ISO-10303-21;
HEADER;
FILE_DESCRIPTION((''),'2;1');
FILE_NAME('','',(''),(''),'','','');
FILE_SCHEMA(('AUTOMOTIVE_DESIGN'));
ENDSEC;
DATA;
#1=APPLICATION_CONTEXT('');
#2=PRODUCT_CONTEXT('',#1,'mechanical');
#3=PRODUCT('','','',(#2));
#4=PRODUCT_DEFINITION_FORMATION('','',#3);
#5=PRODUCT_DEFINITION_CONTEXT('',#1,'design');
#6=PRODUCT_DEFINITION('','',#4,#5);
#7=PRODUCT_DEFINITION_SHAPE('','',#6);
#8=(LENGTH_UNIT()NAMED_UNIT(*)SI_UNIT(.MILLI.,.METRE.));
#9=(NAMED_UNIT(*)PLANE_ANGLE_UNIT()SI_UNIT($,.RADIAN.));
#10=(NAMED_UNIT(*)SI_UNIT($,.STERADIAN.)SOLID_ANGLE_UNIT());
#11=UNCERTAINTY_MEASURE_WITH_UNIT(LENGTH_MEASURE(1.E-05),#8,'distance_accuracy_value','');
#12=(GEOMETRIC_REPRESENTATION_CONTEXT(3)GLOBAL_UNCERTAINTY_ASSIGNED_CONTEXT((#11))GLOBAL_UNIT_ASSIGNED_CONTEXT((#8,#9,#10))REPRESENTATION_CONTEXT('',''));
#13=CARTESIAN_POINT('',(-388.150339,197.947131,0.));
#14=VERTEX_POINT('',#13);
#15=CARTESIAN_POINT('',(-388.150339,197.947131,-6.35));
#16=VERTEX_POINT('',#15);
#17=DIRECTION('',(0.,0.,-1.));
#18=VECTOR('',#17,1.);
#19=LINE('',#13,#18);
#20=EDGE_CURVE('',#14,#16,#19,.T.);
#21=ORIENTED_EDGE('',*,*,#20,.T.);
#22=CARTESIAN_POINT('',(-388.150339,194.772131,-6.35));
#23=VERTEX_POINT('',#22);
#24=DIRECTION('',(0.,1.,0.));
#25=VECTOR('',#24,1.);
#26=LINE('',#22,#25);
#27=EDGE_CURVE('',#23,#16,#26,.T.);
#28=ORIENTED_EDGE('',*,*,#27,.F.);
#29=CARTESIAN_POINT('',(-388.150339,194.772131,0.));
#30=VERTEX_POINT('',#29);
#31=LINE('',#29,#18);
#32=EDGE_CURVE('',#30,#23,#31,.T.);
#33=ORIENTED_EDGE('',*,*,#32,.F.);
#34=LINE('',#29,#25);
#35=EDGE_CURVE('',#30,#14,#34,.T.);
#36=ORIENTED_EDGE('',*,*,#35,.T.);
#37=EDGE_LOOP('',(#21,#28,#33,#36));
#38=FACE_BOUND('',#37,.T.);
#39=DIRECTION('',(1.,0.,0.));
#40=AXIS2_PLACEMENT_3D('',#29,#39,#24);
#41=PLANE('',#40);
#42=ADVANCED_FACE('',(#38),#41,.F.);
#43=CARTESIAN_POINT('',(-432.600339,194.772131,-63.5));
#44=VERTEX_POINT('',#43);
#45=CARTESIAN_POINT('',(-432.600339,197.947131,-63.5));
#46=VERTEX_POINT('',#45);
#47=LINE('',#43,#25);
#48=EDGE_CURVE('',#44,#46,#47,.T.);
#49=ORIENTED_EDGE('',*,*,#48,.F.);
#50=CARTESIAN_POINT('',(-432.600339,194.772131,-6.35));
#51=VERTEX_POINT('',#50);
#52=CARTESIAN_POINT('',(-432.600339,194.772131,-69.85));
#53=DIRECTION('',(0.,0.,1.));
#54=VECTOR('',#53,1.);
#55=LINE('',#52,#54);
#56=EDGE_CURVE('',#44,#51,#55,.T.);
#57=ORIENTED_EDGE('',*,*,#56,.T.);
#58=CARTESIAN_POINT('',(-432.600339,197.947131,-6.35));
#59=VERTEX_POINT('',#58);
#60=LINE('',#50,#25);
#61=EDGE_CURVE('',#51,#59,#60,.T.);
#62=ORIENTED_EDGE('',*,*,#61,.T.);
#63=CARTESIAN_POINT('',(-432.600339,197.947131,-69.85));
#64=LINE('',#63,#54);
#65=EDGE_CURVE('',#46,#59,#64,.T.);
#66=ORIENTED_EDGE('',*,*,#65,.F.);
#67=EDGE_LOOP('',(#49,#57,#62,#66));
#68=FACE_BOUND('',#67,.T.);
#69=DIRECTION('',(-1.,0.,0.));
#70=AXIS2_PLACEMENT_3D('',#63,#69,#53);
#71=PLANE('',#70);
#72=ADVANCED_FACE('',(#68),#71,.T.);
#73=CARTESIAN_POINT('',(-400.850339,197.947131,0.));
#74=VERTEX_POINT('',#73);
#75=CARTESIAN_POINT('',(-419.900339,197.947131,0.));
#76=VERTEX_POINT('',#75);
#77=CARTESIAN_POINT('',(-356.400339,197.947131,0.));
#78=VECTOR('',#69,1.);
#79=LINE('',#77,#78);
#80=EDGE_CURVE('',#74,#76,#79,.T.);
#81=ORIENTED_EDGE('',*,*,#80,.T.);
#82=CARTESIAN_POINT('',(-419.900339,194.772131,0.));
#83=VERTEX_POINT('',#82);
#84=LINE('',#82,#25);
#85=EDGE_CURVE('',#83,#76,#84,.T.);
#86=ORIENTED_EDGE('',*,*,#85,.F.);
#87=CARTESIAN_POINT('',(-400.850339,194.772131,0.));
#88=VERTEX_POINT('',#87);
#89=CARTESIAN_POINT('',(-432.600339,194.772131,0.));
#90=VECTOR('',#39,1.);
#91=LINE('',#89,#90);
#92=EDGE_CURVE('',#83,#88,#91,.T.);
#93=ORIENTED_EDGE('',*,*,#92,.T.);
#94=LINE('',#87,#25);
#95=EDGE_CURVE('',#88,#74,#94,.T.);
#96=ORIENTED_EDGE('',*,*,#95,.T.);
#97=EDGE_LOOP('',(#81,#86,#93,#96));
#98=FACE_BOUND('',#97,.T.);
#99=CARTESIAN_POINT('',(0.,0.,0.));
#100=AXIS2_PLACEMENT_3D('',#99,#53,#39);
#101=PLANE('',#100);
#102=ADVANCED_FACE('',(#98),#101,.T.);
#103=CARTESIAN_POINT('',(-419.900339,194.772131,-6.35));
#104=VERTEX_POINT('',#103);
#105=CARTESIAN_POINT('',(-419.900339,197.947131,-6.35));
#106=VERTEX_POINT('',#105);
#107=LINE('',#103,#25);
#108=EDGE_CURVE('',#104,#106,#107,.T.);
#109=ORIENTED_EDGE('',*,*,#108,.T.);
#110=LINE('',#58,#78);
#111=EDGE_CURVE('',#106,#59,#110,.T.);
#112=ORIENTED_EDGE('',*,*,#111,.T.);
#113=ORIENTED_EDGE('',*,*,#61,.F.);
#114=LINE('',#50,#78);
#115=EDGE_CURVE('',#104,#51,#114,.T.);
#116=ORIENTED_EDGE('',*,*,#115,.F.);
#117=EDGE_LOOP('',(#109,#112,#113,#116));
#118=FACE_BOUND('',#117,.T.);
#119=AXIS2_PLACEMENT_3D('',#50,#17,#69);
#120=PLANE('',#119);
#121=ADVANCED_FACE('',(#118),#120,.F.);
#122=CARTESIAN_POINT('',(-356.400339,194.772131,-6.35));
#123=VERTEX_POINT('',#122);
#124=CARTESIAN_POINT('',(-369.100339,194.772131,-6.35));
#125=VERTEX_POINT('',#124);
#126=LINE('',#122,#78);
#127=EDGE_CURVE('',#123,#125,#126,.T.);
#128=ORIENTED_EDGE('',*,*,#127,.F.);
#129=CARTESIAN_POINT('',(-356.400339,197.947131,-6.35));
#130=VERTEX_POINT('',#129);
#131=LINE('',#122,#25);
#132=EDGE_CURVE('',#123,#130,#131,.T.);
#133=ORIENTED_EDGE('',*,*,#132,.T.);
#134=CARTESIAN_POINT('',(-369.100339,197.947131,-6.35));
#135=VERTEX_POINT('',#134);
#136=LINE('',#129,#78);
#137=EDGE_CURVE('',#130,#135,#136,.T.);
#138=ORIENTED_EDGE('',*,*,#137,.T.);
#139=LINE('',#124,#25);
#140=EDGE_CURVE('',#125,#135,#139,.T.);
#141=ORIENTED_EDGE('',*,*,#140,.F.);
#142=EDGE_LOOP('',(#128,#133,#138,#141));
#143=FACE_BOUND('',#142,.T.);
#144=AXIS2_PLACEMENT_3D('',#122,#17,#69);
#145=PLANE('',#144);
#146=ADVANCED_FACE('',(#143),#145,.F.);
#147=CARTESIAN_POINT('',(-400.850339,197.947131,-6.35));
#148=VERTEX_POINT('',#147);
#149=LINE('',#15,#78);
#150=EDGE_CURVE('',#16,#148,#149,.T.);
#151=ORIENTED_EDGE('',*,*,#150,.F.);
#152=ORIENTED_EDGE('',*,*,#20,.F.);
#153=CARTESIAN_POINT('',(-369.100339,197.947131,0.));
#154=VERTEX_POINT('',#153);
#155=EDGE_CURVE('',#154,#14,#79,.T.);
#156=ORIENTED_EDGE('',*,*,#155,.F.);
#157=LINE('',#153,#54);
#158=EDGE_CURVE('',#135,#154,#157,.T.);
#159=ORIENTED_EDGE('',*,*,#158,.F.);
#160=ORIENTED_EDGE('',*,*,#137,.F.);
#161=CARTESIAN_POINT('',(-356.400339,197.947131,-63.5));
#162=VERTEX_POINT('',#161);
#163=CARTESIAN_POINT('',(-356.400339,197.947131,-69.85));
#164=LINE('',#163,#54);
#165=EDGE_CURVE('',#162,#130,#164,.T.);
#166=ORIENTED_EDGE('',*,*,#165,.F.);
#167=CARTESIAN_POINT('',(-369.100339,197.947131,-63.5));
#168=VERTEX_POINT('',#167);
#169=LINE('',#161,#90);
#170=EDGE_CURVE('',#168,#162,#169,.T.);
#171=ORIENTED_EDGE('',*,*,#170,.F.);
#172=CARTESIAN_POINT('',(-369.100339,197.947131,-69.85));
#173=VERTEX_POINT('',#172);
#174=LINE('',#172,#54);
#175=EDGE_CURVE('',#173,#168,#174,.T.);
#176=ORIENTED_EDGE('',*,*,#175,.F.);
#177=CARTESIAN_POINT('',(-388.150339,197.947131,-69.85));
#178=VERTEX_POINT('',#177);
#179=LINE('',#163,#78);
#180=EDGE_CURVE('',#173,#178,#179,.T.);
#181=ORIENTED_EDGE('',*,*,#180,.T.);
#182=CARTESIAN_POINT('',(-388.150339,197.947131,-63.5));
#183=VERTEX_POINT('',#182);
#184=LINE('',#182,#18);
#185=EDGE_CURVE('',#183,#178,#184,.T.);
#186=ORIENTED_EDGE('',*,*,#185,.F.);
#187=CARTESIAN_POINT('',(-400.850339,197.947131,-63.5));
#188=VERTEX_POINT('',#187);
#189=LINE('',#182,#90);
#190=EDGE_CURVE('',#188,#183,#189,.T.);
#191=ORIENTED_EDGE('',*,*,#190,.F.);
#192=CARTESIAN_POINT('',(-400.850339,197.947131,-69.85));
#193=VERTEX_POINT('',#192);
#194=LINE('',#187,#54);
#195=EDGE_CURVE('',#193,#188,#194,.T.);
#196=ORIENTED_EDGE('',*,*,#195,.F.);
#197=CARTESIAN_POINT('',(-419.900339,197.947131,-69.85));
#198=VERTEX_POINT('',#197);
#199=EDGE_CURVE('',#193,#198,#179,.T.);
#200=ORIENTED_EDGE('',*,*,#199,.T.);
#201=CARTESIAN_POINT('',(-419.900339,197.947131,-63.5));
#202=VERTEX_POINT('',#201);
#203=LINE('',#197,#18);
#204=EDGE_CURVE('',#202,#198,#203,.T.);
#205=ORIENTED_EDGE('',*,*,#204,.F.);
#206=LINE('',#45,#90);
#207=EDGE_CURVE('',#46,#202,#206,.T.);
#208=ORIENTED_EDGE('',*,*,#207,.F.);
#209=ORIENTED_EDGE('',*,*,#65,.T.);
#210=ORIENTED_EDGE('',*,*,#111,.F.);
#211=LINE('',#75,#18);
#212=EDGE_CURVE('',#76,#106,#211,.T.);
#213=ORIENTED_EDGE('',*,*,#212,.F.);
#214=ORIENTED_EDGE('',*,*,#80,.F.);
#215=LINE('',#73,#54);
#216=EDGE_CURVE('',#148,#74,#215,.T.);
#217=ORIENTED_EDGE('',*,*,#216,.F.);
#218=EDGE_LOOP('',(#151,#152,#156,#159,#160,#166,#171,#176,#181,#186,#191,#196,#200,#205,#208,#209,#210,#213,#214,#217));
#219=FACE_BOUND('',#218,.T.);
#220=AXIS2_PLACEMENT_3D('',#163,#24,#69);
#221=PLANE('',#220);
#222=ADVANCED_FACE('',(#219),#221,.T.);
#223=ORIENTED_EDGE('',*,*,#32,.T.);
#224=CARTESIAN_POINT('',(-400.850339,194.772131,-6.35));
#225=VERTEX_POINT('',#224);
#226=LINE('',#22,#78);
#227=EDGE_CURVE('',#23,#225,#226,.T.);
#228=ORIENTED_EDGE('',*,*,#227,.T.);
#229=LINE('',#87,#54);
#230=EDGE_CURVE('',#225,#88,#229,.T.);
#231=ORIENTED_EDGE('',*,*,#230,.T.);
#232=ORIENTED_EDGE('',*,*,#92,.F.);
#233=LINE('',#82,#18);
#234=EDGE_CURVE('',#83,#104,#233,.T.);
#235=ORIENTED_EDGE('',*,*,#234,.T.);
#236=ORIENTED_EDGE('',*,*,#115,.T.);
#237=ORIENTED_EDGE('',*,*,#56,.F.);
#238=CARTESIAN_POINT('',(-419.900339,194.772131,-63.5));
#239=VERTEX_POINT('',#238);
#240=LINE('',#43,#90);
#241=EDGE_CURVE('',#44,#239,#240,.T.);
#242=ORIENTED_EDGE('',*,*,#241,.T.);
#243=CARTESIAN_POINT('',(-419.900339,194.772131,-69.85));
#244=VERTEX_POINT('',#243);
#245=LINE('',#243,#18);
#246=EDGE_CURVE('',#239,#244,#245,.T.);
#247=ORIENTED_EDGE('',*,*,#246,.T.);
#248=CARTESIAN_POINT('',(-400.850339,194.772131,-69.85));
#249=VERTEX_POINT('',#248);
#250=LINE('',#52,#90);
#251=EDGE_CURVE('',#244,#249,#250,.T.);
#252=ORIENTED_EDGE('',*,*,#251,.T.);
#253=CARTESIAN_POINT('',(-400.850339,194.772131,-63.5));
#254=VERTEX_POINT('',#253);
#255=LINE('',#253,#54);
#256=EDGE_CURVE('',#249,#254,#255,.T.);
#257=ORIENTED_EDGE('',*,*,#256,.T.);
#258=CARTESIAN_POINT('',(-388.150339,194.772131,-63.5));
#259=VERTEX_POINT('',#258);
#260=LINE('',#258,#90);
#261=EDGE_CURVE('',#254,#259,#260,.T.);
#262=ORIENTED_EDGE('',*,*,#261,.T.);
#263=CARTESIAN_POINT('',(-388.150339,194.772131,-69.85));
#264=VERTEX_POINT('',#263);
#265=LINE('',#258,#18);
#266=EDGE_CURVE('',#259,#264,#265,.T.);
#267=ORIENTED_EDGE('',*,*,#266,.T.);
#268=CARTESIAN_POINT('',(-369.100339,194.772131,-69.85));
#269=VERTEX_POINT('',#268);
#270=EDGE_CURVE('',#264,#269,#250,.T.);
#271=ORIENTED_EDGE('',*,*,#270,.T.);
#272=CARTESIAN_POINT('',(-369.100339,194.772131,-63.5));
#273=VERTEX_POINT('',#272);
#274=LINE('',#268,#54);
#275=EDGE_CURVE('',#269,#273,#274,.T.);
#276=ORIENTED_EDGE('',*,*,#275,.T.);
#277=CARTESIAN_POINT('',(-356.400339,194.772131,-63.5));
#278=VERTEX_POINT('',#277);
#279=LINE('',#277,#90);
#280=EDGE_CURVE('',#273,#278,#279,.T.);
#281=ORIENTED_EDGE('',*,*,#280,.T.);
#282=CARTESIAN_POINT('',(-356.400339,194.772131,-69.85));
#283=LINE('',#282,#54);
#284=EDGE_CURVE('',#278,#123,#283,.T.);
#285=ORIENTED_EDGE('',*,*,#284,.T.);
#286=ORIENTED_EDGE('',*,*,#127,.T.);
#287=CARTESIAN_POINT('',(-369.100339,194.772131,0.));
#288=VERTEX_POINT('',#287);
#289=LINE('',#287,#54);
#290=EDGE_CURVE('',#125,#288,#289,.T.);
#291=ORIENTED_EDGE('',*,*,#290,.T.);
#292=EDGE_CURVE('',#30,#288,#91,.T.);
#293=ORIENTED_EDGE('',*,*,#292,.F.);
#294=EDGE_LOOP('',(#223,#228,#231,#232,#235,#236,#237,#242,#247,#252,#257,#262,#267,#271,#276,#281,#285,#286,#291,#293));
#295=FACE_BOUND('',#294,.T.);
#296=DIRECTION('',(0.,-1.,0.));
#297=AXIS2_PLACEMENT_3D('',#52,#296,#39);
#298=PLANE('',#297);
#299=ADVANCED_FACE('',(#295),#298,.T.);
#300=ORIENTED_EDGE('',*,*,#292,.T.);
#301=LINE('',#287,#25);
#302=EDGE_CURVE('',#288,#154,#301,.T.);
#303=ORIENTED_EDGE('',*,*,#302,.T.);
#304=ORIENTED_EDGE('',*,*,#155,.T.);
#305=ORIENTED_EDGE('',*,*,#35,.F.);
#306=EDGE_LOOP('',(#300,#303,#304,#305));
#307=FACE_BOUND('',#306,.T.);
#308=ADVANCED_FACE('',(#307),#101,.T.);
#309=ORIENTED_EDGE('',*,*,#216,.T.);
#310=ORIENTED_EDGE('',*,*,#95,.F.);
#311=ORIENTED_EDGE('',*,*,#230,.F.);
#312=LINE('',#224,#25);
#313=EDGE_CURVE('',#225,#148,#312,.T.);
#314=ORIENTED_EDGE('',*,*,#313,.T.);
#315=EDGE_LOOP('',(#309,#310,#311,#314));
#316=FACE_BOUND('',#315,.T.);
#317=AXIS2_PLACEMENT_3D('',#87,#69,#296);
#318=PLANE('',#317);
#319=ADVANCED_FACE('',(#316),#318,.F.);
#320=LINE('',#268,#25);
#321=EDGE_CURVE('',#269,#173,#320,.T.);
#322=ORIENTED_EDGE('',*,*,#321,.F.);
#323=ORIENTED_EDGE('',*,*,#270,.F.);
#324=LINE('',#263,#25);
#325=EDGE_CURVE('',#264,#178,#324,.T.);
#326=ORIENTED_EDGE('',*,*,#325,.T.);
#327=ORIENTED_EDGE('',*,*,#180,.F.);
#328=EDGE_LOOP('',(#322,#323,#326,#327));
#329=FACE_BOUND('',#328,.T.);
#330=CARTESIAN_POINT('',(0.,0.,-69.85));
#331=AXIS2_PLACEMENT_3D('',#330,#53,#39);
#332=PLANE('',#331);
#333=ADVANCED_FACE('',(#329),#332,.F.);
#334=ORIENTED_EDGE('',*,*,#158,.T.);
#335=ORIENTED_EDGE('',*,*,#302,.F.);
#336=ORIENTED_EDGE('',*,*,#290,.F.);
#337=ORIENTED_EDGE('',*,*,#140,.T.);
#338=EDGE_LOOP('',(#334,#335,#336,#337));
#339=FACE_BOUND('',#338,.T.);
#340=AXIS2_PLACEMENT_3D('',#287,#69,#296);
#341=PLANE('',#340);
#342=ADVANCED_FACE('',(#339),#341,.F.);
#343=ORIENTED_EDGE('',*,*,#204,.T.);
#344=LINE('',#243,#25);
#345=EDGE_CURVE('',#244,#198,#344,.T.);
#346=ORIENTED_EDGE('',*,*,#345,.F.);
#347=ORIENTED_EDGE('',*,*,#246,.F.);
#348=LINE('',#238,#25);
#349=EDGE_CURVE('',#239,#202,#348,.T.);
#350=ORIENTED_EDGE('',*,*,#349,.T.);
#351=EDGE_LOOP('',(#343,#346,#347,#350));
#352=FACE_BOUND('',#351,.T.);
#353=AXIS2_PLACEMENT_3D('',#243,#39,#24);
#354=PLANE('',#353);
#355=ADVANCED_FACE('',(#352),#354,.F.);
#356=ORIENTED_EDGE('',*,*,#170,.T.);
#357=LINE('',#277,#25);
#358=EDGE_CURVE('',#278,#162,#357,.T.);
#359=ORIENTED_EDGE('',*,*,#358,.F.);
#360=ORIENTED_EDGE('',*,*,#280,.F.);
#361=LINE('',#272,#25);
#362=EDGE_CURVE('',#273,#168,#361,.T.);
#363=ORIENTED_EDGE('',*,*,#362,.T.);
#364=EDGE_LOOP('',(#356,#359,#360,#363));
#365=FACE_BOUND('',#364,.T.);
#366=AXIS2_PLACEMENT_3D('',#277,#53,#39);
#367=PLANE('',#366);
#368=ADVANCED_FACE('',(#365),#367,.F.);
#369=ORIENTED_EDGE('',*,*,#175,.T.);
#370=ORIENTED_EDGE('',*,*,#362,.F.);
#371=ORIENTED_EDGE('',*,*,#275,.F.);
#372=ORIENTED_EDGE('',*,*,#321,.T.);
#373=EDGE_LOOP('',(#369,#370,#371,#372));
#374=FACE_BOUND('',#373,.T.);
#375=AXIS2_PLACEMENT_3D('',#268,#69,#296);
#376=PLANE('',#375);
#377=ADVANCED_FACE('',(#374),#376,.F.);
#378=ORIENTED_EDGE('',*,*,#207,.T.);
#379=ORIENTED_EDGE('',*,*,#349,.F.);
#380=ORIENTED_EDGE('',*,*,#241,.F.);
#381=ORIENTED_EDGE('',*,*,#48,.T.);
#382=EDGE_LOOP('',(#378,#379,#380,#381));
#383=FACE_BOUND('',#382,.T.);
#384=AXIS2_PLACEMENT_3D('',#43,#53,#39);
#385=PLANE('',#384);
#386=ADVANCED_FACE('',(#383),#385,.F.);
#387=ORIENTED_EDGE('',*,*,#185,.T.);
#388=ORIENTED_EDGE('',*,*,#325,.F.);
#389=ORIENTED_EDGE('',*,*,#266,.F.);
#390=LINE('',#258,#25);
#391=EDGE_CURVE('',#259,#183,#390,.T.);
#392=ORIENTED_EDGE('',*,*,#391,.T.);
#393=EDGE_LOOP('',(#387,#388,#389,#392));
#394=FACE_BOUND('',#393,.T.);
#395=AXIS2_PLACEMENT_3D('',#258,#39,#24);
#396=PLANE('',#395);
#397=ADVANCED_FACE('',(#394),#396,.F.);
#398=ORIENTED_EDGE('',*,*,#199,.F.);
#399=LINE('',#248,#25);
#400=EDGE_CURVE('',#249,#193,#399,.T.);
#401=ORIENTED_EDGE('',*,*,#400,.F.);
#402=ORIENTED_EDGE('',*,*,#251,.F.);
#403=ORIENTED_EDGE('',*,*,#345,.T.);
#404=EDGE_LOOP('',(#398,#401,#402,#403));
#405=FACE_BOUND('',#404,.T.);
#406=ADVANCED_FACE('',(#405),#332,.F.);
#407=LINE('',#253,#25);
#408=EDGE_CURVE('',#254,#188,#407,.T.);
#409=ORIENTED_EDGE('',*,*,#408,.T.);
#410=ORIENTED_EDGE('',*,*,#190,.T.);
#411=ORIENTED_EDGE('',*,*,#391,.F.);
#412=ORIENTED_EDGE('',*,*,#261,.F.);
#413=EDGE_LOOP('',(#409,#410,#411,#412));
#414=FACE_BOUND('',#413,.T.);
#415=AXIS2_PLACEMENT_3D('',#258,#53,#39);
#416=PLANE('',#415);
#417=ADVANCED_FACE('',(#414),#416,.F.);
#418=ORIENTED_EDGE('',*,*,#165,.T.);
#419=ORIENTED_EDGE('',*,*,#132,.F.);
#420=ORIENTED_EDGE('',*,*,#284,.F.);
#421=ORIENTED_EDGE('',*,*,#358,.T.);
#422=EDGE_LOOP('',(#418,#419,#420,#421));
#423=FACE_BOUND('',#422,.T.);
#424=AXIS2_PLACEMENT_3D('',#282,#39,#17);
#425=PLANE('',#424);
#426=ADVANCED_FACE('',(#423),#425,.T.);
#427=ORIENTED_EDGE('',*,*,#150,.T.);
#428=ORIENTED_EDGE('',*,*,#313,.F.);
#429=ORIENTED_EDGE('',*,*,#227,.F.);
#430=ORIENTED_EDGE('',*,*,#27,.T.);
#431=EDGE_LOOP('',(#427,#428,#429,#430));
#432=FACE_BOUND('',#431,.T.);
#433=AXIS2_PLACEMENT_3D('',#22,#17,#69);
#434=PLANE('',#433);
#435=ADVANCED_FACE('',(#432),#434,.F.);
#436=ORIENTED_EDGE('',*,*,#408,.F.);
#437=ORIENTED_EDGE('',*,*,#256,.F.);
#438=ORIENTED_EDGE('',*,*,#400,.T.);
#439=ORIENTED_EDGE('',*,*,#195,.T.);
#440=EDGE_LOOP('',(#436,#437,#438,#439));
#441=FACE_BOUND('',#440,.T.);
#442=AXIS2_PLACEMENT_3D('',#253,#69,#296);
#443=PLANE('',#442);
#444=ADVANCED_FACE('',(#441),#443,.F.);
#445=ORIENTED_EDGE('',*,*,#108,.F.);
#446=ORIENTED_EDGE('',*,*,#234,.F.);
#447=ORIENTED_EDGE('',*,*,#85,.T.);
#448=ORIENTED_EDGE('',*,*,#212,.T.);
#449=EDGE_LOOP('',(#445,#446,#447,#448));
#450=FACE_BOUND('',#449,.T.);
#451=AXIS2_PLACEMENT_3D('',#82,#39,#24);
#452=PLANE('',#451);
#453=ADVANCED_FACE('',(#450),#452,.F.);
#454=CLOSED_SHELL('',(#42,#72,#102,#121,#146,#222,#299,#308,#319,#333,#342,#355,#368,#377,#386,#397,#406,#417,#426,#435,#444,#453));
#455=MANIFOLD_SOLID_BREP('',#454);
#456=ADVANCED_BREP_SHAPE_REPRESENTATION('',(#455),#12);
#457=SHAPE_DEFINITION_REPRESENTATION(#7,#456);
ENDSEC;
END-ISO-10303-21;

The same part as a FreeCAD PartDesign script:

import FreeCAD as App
import Part
import Sketcher
Q = App.Units.Quantity


def add_polygon(sketch, points):
    """Adds a closed chain of lines whose ends are joined by coincident constraints."""
    first, n = sketch.GeometryCount, len(points)
    for a, b in zip(points, points[1:] + points[:1]):
        sketch.addGeometry(Part.LineSegment(App.Vector(*a, 0), App.Vector(*b, 0)), False)
    for i in range(n):
        sketch.addConstraint(Sketcher.Constraint("Coincident", first + i, 2, first + (i + 1) % n, 1))

doc = App.newDocument("Part")
body = doc.addObject("PartDesign::Body", "Body")

# Sketch on XY plane
sketch1 = body.newObject("Sketcher::SketchObject", "Sketch")
sketch1.AttachmentSupport = (doc.getObject("XY_Plane"), [""])
sketch1.MapMode = "FlatFace"
add_polygon(sketch1, [(-432.6, 197.9), (-432.6, 194.8), (-356.4, 194.8), (-356.4, 197.9)])  # lines 0-3
sketch1.addConstraint(Sketcher.Constraint("Vertical", 0))
sketch1.addConstraint(Sketcher.Constraint("Horizontal", 1))
sketch1.addConstraint(Sketcher.Constraint("Vertical", 2))
sketch1.addConstraint(Sketcher.Constraint("Horizontal", 3))
sketch1.addConstraint(Sketcher.Constraint("DistanceX", 1, 1, 1, 2, Q("3 in")))
sketch1.addConstraint(Sketcher.Constraint("DistanceY", 0, 2, 0, 1, Q("0.125 in")))
sketch1.addConstraint(Sketcher.Constraint("DistanceX", 0, 2, -1, 1, Q("432.600339 mm")))
sketch1.addConstraint(Sketcher.Constraint("DistanceY", -1, 1, 0, 2, Q("194.772131 mm")))
pad1 = body.newObject("PartDesign::Pad", "Pad")
pad1.Profile = sketch1
pad1.Length = Q("2.75 in")
pad1.Reversed = True

# Sketch on XZ plane
sketch2 = body.newObject("Sketcher::SketchObject", "Sketch001")
sketch2.AttachmentSupport = (doc.getObject("XZ_Plane"), [""])
sketch2.MapMode = "FlatFace"
sketch2.AttachmentOffset = App.Placement(App.Vector(0, 0, -197.947131), App.Rotation())
add_polygon(sketch2, [(-369, -6), (-369, 0), (-356, 0), (-356, -6)])  # lines 0-3
add_polygon(sketch2, [(-401, -6), (-401, 0), (-388, 0), (-388, -6)])  # lines 4-7
add_polygon(sketch2, [(-433, -6), (-433, 0), (-420, 0), (-420, -6)])  # lines 8-11
add_polygon(sketch2, [(-369, -70), (-369, -64), (-356, -64), (-356, -70)])  # lines 12-15
add_polygon(sketch2, [(-401, -70), (-401, -64), (-388, -64), (-388, -70)])  # lines 16-19
add_polygon(sketch2, [(-433, -70), (-433, -64), (-420, -64), (-420, -70)])  # lines 20-23
sketch2.addConstraint(Sketcher.Constraint("Vertical", 0))
sketch2.addConstraint(Sketcher.Constraint("Horizontal", 1))
sketch2.addConstraint(Sketcher.Constraint("Vertical", 2))
sketch2.addConstraint(Sketcher.Constraint("Horizontal", 3))
sketch2.addConstraint(Sketcher.Constraint("Vertical", 4))
sketch2.addConstraint(Sketcher.Constraint("Horizontal", 5))
sketch2.addConstraint(Sketcher.Constraint("Vertical", 6))
sketch2.addConstraint(Sketcher.Constraint("Horizontal", 7))
sketch2.addConstraint(Sketcher.Constraint("Vertical", 8))
sketch2.addConstraint(Sketcher.Constraint("Horizontal", 9))
sketch2.addConstraint(Sketcher.Constraint("Vertical", 10))
sketch2.addConstraint(Sketcher.Constraint("Horizontal", 11))
sketch2.addConstraint(Sketcher.Constraint("Vertical", 12))
sketch2.addConstraint(Sketcher.Constraint("Horizontal", 13))
sketch2.addConstraint(Sketcher.Constraint("Vertical", 14))
sketch2.addConstraint(Sketcher.Constraint("Horizontal", 15))
sketch2.addConstraint(Sketcher.Constraint("Vertical", 16))
sketch2.addConstraint(Sketcher.Constraint("Horizontal", 17))
sketch2.addConstraint(Sketcher.Constraint("Vertical", 18))
sketch2.addConstraint(Sketcher.Constraint("Horizontal", 19))
sketch2.addConstraint(Sketcher.Constraint("Vertical", 20))
sketch2.addConstraint(Sketcher.Constraint("Horizontal", 21))
sketch2.addConstraint(Sketcher.Constraint("Vertical", 22))
sketch2.addConstraint(Sketcher.Constraint("Horizontal", 23))
sketch2.addConstraint(Sketcher.Constraint("PointOnObject", 0, 2, -1))
sketch2.addConstraint(Sketcher.Constraint("PointOnObject", 4, 2, -1))
sketch2.addConstraint(Sketcher.Constraint("PointOnObject", 8, 2, -1))
sketch2.addConstraint(Sketcher.Constraint("Horizontal", 3, 2, 6, 2))
sketch2.addConstraint(Sketcher.Constraint("Horizontal", 7, 2, 10, 2))
sketch2.addConstraint(Sketcher.Constraint("Horizontal", 13, 2, 16, 2))
sketch2.addConstraint(Sketcher.Constraint("Horizontal", 15, 2, 18, 2))
sketch2.addConstraint(Sketcher.Constraint("Horizontal", 17, 2, 20, 2))
sketch2.addConstraint(Sketcher.Constraint("Horizontal", 19, 2, 22, 2))
sketch2.addConstraint(Sketcher.Constraint("Vertical", 3, 2, 12, 2))
sketch2.addConstraint(Sketcher.Constraint("Vertical", 2, 2, 13, 2))
sketch2.addConstraint(Sketcher.Constraint("Vertical", 7, 2, 16, 2))
sketch2.addConstraint(Sketcher.Constraint("Vertical", 6, 2, 17, 2))
sketch2.addConstraint(Sketcher.Constraint("Vertical", 11, 2, 20, 2))
sketch2.addConstraint(Sketcher.Constraint("Vertical", 10, 2, 21, 2))
sketch2.addConstraint(Sketcher.Constraint("Equal", 3, 5))
sketch2.addConstraint(Sketcher.Constraint("Equal", 7, 9))
sketch2.addConstraint(Sketcher.Constraint("Equal", 10, 12))
sketch2.addConstraint(Sketcher.Constraint("DistanceX", 1, 1, 1, 2, Q("0.5 in")))
sketch2.addConstraint(Sketcher.Constraint("DistanceY", 0, 1, 0, 2, Q("0.25 in")))
sketch2.addConstraint(Sketcher.Constraint("DistanceY", 12, 2, -1, 1, Q("2.5 in")))
sketch2.addConstraint(Sketcher.Constraint("DistanceX", 8, 2, 0, 2, Q("2.5 in")))
sketch2.addConstraint(Sketcher.Constraint("DistanceX", 4, 2, 0, 2, Q("1.25 in")))
sketch2.addConstraint(Sketcher.Constraint("DistanceX", 0, 2, -1, 1, Q("369.100339 mm")))
pocket1 = body.newObject("PartDesign::Pocket", "Pocket")
pocket1.Profile = sketch2
pocket1.Type = "ThroughAll"
pocket1.Reversed = True

doc.recompute()
